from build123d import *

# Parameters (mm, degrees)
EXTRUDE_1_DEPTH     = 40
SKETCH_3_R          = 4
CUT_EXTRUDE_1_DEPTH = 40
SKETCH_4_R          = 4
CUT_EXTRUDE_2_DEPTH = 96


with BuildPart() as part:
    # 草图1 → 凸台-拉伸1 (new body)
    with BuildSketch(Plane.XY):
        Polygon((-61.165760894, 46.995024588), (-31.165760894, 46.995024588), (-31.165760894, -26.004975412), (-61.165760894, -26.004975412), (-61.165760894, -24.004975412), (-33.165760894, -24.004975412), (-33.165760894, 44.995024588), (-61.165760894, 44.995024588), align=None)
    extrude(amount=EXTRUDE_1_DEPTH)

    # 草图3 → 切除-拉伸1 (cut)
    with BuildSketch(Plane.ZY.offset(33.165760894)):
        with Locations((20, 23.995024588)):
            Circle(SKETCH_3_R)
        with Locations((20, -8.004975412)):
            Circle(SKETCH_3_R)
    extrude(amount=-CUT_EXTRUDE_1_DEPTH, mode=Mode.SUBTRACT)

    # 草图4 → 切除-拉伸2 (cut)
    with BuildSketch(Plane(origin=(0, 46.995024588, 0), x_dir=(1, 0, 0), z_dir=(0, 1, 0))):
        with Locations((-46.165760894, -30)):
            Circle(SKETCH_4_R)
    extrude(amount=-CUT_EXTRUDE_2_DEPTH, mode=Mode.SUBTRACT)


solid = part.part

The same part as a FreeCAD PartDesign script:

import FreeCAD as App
import Part
import Sketcher


def add_polygon(sketch, points):
    """Adds a closed chain of lines whose ends are joined by coincident constraints."""
    first, n = sketch.GeometryCount, len(points)
    for a, b in zip(points, points[1:] + points[:1]):
        sketch.addGeometry(Part.LineSegment(App.Vector(*a, 0), App.Vector(*b, 0)), False)
    for i in range(n):
        sketch.addConstraint(Sketcher.Constraint("Coincident", first + i, 2, first + (i + 1) % n, 1))

doc = App.newDocument("Part")
body = doc.addObject("PartDesign::Body", "Body")

sketch1 = body.newObject("Sketcher::SketchObject", "Sketch")
sketch1.AttachmentSupport = (doc.getObject("XY_Plane"), [""])
sketch1.MapMode = "FlatFace"
add_polygon(sketch1, [(-31.165761, 46.995025), (-61.165761, 46.995025), (-61.165761, 44.995025), (-33.165761, 44.995025), (-33.165761, -24.004975), (-61.165761, -24.004975), (-61.165761, -26.004975), (-31.165761, -26.004975)])
sketch1.addConstraint([
    Sketcher.Constraint("Horizontal", 0),
    Sketcher.Constraint("Vertical", 1),
    Sketcher.Constraint("Horizontal", 2),
    Sketcher.Constraint("Vertical", 3),
    Sketcher.Constraint("Horizontal", 4),
    Sketcher.Constraint("Vertical", 5),
    Sketcher.Constraint("Horizontal", 6),
    Sketcher.Constraint("Vertical", 7),
    Sketcher.Constraint("Vertical", 1, 2, 4, 2),
    Sketcher.Constraint("Equal", 1, 5),
    Sketcher.Constraint("DistanceX", 0, 2, 0, 1, 30.0),
    Sketcher.Constraint("DistanceX", 2, 1, 2, 2, 28.0),
    Sketcher.Constraint("DistanceY", 1, 2, 1, 1, 2.0),
    Sketcher.Constraint("DistanceY", 3, 2, 3, 1, 69.0),
    Sketcher.Constraint("DistanceX", 0, 2, -1, 1, 61.165761),
    Sketcher.Constraint("DistanceY", -1, 1, 0, 2, 46.995025),
])
pad1 = body.newObject("PartDesign::Pad", "Pad")
pad1.Profile = sketch1
pad1.Length = 40

sketch2 = body.newObject("Sketcher::SketchObject", "Sketch001")
sketch2.AttachmentSupport = (doc.getObject("YZ_Plane"), [""])
sketch2.MapMode = "FlatFace"
sketch2.AttachmentOffset = App.Placement(App.Vector(0, 0, -33.165761), App.Rotation())
sketch2.addGeometry([
    Part.Circle(App.Vector(23.995025, 20, 0), App.Vector(0, 0, 1), 4),
    Part.Circle(App.Vector(-8.004975, 20, 0), App.Vector(0, 0, 1), 4),
], False)
sketch2.addConstraint([
    Sketcher.Constraint("Equal", 0, 1),
    Sketcher.Constraint("Horizontal", 0, 3, 1, 3),
    Sketcher.Constraint("Diameter", 0, 8.0),
    Sketcher.Constraint("DistanceY", -1, 1, 0, 3, 20.0),
    Sketcher.Constraint("DistanceX", 1, 3, 0, 3, 32.0),
    Sketcher.Constraint("DistanceX", -1, 1, 0, 3, 23.995025),
])
pocket1 = body.newObject("PartDesign::Pocket", "Pocket")
pocket1.Profile = sketch2
pocket1.Length = 40
pocket1.Reversed = True

sketch3 = body.newObject("Sketcher::SketchObject", "Sketch002")
sketch3.AttachmentSupport = (doc.getObject("XZ_Plane"), [""])
sketch3.MapMode = "FlatFace"
sketch3.AttachmentOffset = App.Placement(App.Vector(0, 0, -46.995025), App.Rotation())
sketch3.addGeometry(Part.Circle(App.Vector(-46.165761, 30, 0), App.Vector(0, 0, 1), 4), False)
sketch3.addConstraint([
    Sketcher.Constraint("Diameter", 0, 8.0),
    Sketcher.Constraint("DistanceY", -1, 1, 0, 3, 30.0),
    Sketcher.Constraint("DistanceX", 0, 3, -1, 1, 46.165761),
])
pocket2 = body.newObject("PartDesign::Pocket", "Pocket001")
pocket2.Profile = sketch3
pocket2.Length = 96
pocket2.Reversed = True

doc.recompute()
